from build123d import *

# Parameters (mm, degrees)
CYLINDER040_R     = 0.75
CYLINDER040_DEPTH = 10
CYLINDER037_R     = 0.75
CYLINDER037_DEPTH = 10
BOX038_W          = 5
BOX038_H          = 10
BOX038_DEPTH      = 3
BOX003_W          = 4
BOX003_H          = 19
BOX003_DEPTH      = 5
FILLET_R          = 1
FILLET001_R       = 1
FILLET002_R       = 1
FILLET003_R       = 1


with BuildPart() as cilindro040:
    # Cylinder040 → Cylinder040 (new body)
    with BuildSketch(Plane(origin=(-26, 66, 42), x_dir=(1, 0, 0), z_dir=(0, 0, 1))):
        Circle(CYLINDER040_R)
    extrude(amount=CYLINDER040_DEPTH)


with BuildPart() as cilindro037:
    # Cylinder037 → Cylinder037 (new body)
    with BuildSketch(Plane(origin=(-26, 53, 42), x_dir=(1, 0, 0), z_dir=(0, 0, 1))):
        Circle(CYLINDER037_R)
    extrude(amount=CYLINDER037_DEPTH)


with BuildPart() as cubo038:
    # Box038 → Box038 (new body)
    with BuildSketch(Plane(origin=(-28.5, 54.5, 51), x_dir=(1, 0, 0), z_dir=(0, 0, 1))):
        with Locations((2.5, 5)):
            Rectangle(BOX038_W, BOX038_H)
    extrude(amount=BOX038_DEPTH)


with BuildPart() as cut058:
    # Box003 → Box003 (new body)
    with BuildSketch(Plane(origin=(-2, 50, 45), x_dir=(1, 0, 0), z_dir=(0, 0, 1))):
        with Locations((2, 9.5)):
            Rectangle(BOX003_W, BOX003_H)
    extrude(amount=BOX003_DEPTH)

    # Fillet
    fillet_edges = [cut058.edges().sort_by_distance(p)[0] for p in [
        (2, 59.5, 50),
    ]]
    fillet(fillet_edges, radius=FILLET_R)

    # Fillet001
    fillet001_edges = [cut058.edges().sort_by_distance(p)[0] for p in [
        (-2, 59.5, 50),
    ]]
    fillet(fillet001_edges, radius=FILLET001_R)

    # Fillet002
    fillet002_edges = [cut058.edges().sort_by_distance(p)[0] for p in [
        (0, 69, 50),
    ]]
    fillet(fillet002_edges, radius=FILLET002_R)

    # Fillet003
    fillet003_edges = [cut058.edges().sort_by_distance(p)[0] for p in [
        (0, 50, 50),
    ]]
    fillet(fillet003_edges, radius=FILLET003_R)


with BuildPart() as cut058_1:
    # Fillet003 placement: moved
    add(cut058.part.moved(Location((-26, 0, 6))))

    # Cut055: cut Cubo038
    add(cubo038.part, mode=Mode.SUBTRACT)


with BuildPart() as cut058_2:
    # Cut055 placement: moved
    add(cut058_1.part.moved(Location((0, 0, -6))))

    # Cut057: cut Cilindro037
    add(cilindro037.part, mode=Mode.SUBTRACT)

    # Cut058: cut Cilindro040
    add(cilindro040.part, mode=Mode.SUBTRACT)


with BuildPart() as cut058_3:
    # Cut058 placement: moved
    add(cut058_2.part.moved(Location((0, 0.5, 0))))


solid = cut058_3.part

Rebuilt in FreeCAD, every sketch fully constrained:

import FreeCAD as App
import Part
import Sketcher

V = App.Vector


def edges_at(feature, points):
    """Names of the edges that pass closest to the given points."""
    edges = feature.Shape.Edges
    near = lambda p: min(range(len(edges)), key=lambda i: edges[i].distToShape(Part.Vertex(*p))[0])
    return sorted({f"Edge{near(p) + 1}" for p in points})


def add_polygon(sketch, points):
    """Adds a closed chain of lines whose ends are joined by coincident constraints."""
    first, n = sketch.GeometryCount, len(points)
    for a, b in zip(points, points[1:] + points[:1]):
        sketch.addGeometry(Part.LineSegment(App.Vector(*a, 0), App.Vector(*b, 0)), False)
    for i in range(n):
        sketch.addConstraint(Sketcher.Constraint("Coincident", first + i, 2, first + (i + 1) % n, 1))

doc = App.newDocument("Part")
body = doc.addObject("PartDesign::Body", "Body")

# Sketch on XY plane
sketch1 = body.newObject("Sketcher::SketchObject", "Sketch")
sketch1.AttachmentSupport = (doc.getObject("XY_Plane"), [""])
sketch1.MapMode = "FlatFace"
sketch1.AttachmentOffset = App.Placement(V(0, 0, 42), App.Rotation())
sketch1.addGeometry(Part.Circle(V(-26, 66, 0), V(0, 0, 1), 0.8), False)
sketch1.addConstraint([
    Sketcher.Constraint("Diameter", 0, 1.5),
    Sketcher.Constraint("DistanceX", 0, 3, -1, 1, 26.0),
    Sketcher.Constraint("DistanceY", -1, 1, 0, 3, 66.0),
])
pad1 = body.newObject("PartDesign::Pad", "Pad")
pad1.Profile = sketch1
pad1.Length = 10
body2 = doc.addObject("PartDesign::Body", "Body001")

# Sketch on XY plane
sketch2 = body2.newObject("Sketcher::SketchObject", "Sketch001")
sketch2.AttachmentSupport = (doc.getObject("XY_Plane001"), [""])
sketch2.MapMode = "FlatFace"
sketch2.AttachmentOffset = App.Placement(V(0, 0, 42), App.Rotation())
sketch2.addGeometry(Part.Circle(V(-26, 53, 0), V(0, 0, 1), 0.8), False)
sketch2.addConstraint([
    Sketcher.Constraint("Diameter", 0, 1.5),
    Sketcher.Constraint("DistanceX", 0, 3, -1, 1, 26.0),
    Sketcher.Constraint("DistanceY", -1, 1, 0, 3, 53.0),
])
pad2 = body2.newObject("PartDesign::Pad", "Pad001")
pad2.Profile = sketch2
pad2.Length = 10
body3 = doc.addObject("PartDesign::Body", "Body002")

# Sketch on XY plane
sketch3 = body3.newObject("Sketcher::SketchObject", "Sketch002")
sketch3.AttachmentSupport = (doc.getObject("XY_Plane002"), [""])
sketch3.MapMode = "FlatFace"
sketch3.AttachmentOffset = App.Placement(V(0, 0, 51), App.Rotation())
add_polygon(sketch3, [(-28, 64), (-28, 54), (-24, 54), (-24, 64)])  # lines 0-3
sketch3.addConstraint([
    Sketcher.Constraint("Vertical", 0),
    Sketcher.Constraint("Horizontal", 1),
    Sketcher.Constraint("Vertical", 2),
    Sketcher.Constraint("Horizontal", 3),
    Sketcher.Constraint("DistanceX", 1, 1, 1, 2, 5.0),
    Sketcher.Constraint("DistanceY", 0, 2, 0, 1, 10.0),
    Sketcher.Constraint("DistanceX", 0, 2, -1, 1, 28.5),
    Sketcher.Constraint("DistanceY", -1, 1, 0, 2, 54.5),
])
pad3 = body3.newObject("PartDesign::Pad", "Pad002")
pad3.Profile = sketch3
pad3.Length = 3
body4 = doc.addObject("PartDesign::Body", "Body003")

# Sketch on XY plane
sketch4 = body4.newObject("Sketcher::SketchObject", "Sketch003")
sketch4.AttachmentSupport = (doc.getObject("XY_Plane003"), [""])
sketch4.MapMode = "FlatFace"
sketch4.AttachmentOffset = App.Placement(V(0, 0, 45), App.Rotation())
add_polygon(sketch4, [(-2, 69), (-2, 50), (2, 50), (2, 69)])  # lines 0-3
sketch4.addConstraint([
    Sketcher.Constraint("Vertical", 0),
    Sketcher.Constraint("Horizontal", 1),
    Sketcher.Constraint("Vertical", 2),
    Sketcher.Constraint("Horizontal", 3),
    Sketcher.Constraint("DistanceX", 1, 1, 1, 2, 4.0),
    Sketcher.Constraint("DistanceY", 0, 2, 0, 1, 19.0),
    Sketcher.Constraint("DistanceX", 0, 2, -1, 1, 2.0),
    Sketcher.Constraint("DistanceY", -1, 1, 0, 2, 50.0),
])
pad4 = body4.newObject("PartDesign::Pad", "Pad003")
pad4.Profile = sketch4
pad4.Length = 5
doc.recompute()

fillet = body4.newObject("PartDesign::Fillet", "Fillet")
fillet.Base = (pad4, edges_at(pad4, [(2, 59.5, 50)]))
fillet.Radius = 1
doc.recompute()

fillet2 = body4.newObject("PartDesign::Fillet", "Fillet001")
fillet2.Base = (fillet, edges_at(fillet, [(-2, 59.5, 50)]))
fillet2.Radius = 1
doc.recompute()

fillet3 = body4.newObject("PartDesign::Fillet", "Fillet002")
fillet3.Base = (fillet2, edges_at(fillet2, [(0, 69, 50)]))
fillet3.Radius = 1
doc.recompute()

fillet4 = body4.newObject("PartDesign::Fillet", "Fillet003")
fillet4.Base = (fillet3, edges_at(fillet3, [(0, 50, 50)]))
fillet4.Radius = 1
body5 = doc.addObject("PartDesign::Body", "Body004")
doc.recompute()

body4.Placement = App.Placement(V(-26, 0, 6), App.Rotation(V(0, 0, 1), 0))
boolean = body5.newObject("PartDesign::Boolean", "Boolean")
boolean.Type = "Fuse"
boolean.addObjects([body4])
doc.recompute()

boolean2 = body5.newObject("PartDesign::Boolean", "Boolean001")
boolean2.Type = "Cut"
boolean2.addObjects([body3])
body6 = doc.addObject("PartDesign::Body", "Body005")
doc.recompute()

body5.Placement = App.Placement(V(0, 0, -6), App.Rotation(V(0, 0, 1), 0))
boolean3 = body6.newObject("PartDesign::Boolean", "Boolean002")
boolean3.Type = "Fuse"
boolean3.addObjects([body5])
doc.recompute()

boolean4 = body6.newObject("PartDesign::Boolean", "Boolean003")
boolean4.Type = "Cut"
boolean4.addObjects([body2])
doc.recompute()

boolean5 = body6.newObject("PartDesign::Boolean", "Boolean004")
boolean5.Type = "Cut"
boolean5.addObjects([body])
body7 = doc.addObject("PartDesign::Body", "Body006")
doc.recompute()

body6.Placement = App.Placement(V(0, 0.5, 0), App.Rotation(V(0, 0, 1), 0))
boolean6 = body7.newObject("PartDesign::Boolean", "Boolean005")
boolean6.Type = "Fuse"
boolean6.addObjects([body6])

doc.recompute()
